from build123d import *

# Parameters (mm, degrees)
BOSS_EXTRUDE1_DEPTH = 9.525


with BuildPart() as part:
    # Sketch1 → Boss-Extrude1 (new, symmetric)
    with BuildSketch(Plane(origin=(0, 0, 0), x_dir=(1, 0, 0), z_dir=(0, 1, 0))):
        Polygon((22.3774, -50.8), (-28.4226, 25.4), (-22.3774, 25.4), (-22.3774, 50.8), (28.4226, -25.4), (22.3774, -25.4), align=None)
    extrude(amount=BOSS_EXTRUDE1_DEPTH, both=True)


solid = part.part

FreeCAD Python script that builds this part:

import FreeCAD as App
import Part
import Sketcher

V = App.Vector
Q = App.Units.Quantity

doc = App.newDocument("Part")
params = doc.addObject("Spreadsheet::Sheet", "Params")
for row, (alias, value) in enumerate([
    ("sketch1_height", "1 in"),
    ("sketch1_width", "0.238 in"),
    ("pad1_length", "0.75 in"),
], start=1):
    params.set(f"A{row}", alias)
    params.set(f"B{row}", "=" + value)
    params.setAlias(f"B{row}", alias)

body = doc.addObject("PartDesign::Body", "Body")

# Sketch on XZ plane
sketch1 = body.newObject("Sketcher::SketchObject", "Sketch")
sketch1.AttachmentSupport = (doc.getObject("XZ_Plane"), [""])
sketch1.MapMode = "FlatFace"
sketch1.addGeometry(Part.LineSegment(V(-28, -25, 0), V(22, 51, 0)), False)
sketch1.addGeometry(Part.LineSegment(V(22, 51, 0), V(22, 25, 0)), False)
sketch1.addGeometry(Part.LineSegment(V(22, 25, 0), V(28, 25, 0)), False)
sketch1.addGeometry(Part.LineSegment(V(28, 25, 0), V(-22, -51, 0)), False)
sketch1.addGeometry(Part.LineSegment(V(-22, -51, 0), V(-22, -25, 0)), False)
sketch1.addGeometry(Part.LineSegment(V(-22, -25, 0), V(-28, -25, 0)), False)
sketch1.addConstraint(Sketcher.Constraint("Coincident", 0, 2, 1, 1))
sketch1.addConstraint(Sketcher.Constraint("Coincident", 1, 2, 2, 1))
sketch1.addConstraint(Sketcher.Constraint("Coincident", 2, 2, 3, 1))
sketch1.addConstraint(Sketcher.Constraint("Coincident", 3, 2, 4, 1))
sketch1.addConstraint(Sketcher.Constraint("Coincident", 4, 2, 5, 1))
sketch1.addConstraint(Sketcher.Constraint("Coincident", 5, 2, 0, 1))
sketch1.addConstraint(Sketcher.Constraint("Vertical", 1))
sketch1.addConstraint(Sketcher.Constraint("Horizontal", 2))
sketch1.addConstraint(Sketcher.Constraint("Vertical", 4))
sketch1.addConstraint(Sketcher.Constraint("Horizontal", 5))
sketch1.addConstraint(Sketcher.Constraint("Symmetric", 0, 2, 3, 2, -1, 1))
sketch1.addConstraint(Sketcher.Constraint("Symmetric", 2, 2, 5, 2, -1, 1))
sketch1.addConstraint(Sketcher.Constraint("DistanceY", 1, 2, 1, 1, Q("1 in")))
sketch1.addConstraint(Sketcher.Constraint("DistanceY", -1, 1, 0, 2, Q("2 in")))
sketch1.addConstraint(Sketcher.Constraint("DistanceX", 3, 2, 2, 2, Q("2 in")))
sketch1.addConstraint(Sketcher.Constraint("DistanceX", 2, 1, 2, 2, Q("0.238 in")))
sketch1.setExpression("Constraints[12]", "Params.sketch1_height")
sketch1.setExpression("Constraints[15]", "Params.sketch1_width")
pad1 = body.newObject("PartDesign::Pad", "Pad")
pad1.Profile = sketch1
pad1.setExpression("Length", "Params.pad1_length")
pad1.Midplane = True

doc.recompute()
